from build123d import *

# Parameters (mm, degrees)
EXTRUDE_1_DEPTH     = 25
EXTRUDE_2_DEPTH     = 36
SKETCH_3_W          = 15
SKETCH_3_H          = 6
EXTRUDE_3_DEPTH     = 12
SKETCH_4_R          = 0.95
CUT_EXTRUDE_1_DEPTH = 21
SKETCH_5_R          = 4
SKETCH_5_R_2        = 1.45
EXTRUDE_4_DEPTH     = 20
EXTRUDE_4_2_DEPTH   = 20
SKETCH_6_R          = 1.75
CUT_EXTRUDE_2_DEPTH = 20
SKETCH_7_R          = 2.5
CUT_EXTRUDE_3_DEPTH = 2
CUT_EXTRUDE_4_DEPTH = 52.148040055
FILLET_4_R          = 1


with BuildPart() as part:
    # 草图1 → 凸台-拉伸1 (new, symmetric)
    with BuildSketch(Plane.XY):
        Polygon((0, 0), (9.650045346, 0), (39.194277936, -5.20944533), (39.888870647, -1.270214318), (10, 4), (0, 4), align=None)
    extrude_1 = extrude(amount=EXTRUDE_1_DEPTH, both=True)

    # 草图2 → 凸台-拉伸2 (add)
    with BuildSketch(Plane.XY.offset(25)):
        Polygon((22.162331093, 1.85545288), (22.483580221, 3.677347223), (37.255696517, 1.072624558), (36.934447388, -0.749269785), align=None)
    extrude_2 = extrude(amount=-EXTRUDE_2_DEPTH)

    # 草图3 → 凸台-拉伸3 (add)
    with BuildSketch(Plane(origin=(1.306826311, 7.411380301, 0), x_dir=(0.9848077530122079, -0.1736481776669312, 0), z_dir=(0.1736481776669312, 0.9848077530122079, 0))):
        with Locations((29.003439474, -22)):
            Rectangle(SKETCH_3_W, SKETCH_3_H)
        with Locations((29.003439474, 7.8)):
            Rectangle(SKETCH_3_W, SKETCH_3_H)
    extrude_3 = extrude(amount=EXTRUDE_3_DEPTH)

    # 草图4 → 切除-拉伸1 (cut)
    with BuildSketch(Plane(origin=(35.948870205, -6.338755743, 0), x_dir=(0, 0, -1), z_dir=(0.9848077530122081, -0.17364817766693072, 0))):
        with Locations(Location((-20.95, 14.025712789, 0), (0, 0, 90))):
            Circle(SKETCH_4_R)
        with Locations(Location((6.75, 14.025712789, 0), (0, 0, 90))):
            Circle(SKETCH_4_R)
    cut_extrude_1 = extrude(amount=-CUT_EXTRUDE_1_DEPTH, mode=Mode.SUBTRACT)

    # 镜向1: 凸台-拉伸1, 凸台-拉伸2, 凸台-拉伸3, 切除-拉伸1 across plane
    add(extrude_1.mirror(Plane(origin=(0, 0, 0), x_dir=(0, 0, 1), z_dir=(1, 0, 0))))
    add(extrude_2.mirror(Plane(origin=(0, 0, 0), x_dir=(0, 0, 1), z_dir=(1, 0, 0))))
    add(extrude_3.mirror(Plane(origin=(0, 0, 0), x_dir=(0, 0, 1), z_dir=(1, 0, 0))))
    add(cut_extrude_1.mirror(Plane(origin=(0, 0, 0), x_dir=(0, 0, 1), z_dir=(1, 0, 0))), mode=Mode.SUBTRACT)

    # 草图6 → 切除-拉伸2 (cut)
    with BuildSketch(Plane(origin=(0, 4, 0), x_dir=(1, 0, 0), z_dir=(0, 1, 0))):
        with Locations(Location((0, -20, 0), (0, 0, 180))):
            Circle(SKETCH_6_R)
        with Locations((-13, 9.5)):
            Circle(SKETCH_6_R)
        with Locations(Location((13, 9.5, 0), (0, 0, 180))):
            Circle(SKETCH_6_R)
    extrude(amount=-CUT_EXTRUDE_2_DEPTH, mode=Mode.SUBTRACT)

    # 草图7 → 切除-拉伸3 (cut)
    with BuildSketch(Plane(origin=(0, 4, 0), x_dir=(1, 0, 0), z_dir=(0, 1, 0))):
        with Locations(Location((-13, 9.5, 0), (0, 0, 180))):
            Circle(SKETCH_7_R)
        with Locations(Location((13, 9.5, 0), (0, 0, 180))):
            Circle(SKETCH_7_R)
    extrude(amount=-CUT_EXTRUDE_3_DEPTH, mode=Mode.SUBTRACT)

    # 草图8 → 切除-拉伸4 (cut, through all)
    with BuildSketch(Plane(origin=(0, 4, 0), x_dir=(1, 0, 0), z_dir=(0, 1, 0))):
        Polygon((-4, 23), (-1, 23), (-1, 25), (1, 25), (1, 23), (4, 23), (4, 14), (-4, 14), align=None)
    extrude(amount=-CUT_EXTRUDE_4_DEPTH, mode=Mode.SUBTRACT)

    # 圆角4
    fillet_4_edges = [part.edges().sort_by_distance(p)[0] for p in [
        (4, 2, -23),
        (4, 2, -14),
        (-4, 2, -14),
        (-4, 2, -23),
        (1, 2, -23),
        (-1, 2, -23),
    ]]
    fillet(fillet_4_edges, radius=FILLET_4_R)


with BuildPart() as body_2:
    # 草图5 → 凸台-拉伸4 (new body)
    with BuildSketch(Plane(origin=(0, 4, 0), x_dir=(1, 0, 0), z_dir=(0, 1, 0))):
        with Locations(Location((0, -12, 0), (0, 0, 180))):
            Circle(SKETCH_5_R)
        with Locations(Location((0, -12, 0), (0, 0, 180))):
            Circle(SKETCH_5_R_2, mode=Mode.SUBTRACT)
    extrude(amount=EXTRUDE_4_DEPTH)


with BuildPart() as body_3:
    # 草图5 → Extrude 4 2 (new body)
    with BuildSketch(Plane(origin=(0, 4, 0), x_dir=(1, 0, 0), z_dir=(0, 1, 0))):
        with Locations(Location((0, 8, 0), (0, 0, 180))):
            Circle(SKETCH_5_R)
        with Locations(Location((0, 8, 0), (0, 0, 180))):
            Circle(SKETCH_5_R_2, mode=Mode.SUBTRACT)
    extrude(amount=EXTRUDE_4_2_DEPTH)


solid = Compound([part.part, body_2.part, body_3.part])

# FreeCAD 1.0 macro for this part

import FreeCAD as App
import Part
import Sketcher

V = App.Vector
Q = App.Units.Quantity


def edges_at(feature, points):
    """Names of the edges that pass closest to the given points."""
    edges = feature.Shape.Edges
    near = lambda p: min(range(len(edges)), key=lambda i: edges[i].distToShape(Part.Vertex(*p))[0])
    return sorted({f"Edge{near(p) + 1}" for p in points})

doc = App.newDocument("Part")
params = doc.addObject("Spreadsheet::Sheet", "Params")
for row, (alias, value) in enumerate([
    ("sketch1_width", "10 mm"),
    ("sketch1_height", "4 mm"),
    ("sketch1_length", "30 mm"),
    ("sketch1_length2", "4 mm"),
    ("pad1_length", "50 mm"),
    ("sketch2_length", "15 mm"),
    ("sketch2_length2", "1.85 mm"),
    ("pad2_length", "36 mm"),
    ("sketch3_width", "15 mm"),
    ("sketch3_height", "6 mm"),
    ("pad3_length", "12 mm"),
    ("sketch4_diameter", "1.9 mm"),
    ("pocket1_length", "21 mm"),
    ("sketch5_diameter", "3.5 mm"),
    ("pocket2_length", "20 mm"),
    ("sketch6_diameter", "5 mm"),
    ("pocket3_length", "2 mm"),
    ("sketch7_width", "3 mm"),
    ("sketch7_width2", "8 mm"),
    ("sketch7_height", "9 mm"),
    ("fillet_radius", "1 mm"),
    ("sketch8_diameter", "8 mm"),
    ("sketch8_diameter2", "2.9 mm"),
    ("pad4_length", "20 mm"),
    ("sketch9_diameter", "8 mm"),
    ("sketch9_diameter2", "2.9 mm"),
    ("pad5_length", "20 mm"),
], start=1):
    params.set(f"A{row}", alias)
    params.set(f"B{row}", "=" + value)
    params.setAlias(f"B{row}", alias)

body = doc.addObject("PartDesign::Body", "Body")

# Sketch on XY plane
sketch1 = body.newObject("Sketcher::SketchObject", "Sketch")
sketch1.AttachmentSupport = (doc.getObject("XY_Plane"), [""])
sketch1.MapMode = "FlatFace"
sketch1.addGeometry([
    Part.LineSegment(V(0, 0, 0), V(9.650045, 0, 0)),  # 0
    Part.LineSegment(V(9.650045, 0, 0), V(39.194278, -5.209445, 0)),  # 1
    Part.LineSegment(V(39.194278, -5.209445, 0), V(39.888871, -1.270214, 0)),  # 2
    Part.LineSegment(V(39.888871, -1.270214, 0), V(10, 4, 0)),  # 3
    Part.LineSegment(V(10, 4, 0), V(0, 4, 0)),  # 4
    Part.LineSegment(V(0, 4, 0), V(0, 0, 0)),  # 5
], False)
sketch1.addConstraint([
    Sketcher.Constraint("Coincident", 0, 2, 1, 1),
    Sketcher.Constraint("Coincident", 1, 2, 2, 1),
    Sketcher.Constraint("Coincident", 2, 2, 3, 1),
    Sketcher.Constraint("Coincident", 3, 2, 4, 1),
    Sketcher.Constraint("Coincident", 4, 2, 5, 1),
    Sketcher.Constraint("Coincident", 5, 2, 0, 1),
    Sketcher.Constraint("Horizontal", 0),
    Sketcher.Constraint("Horizontal", 4),
    Sketcher.Constraint("Vertical", 5),
    Sketcher.Constraint("Coincident", 5, 2, -1, 1),
    Sketcher.Constraint("Perpendicular", 1, 2),
    Sketcher.Constraint("Perpendicular", 2, 3),
    Sketcher.Constraint("DistanceX", 4, 2, 4, 1, Q("10 mm")),
    Sketcher.Constraint("DistanceY", 5, 2, 5, 1, Q("4 mm")),
    Sketcher.Constraint("Angle", 1, Q("-10 deg")),
    Sketcher.Constraint("Distance", 1, Q("30 mm")),
    Sketcher.Constraint("Distance", 2, Q("4 mm")),
])
sketch1.setExpression("Constraints[12]", "Params.sketch1_width")
sketch1.setExpression("Constraints[13]", "Params.sketch1_height")
sketch1.setExpression("Constraints[15]", "Params.sketch1_length")
sketch1.setExpression("Constraints[16]", "Params.sketch1_length2")
pad1 = body.newObject("PartDesign::Pad", "Pad")
pad1.Profile = sketch1
pad1.setExpression("Length", "Params.pad1_length")
pad1.Midplane = True

# Sketch on XY plane
sketch2 = body.newObject("Sketcher::SketchObject", "Sketch001")
sketch2.AttachmentSupport = (doc.getObject("XY_Plane"), [""])
sketch2.MapMode = "FlatFace"
sketch2.AttachmentOffset = App.Placement(V(0, 0, 25), App.Rotation())
sketch2.addGeometry([
    Part.LineSegment(V(22.48358, 3.677347, 0), V(22.162331, 1.855453, 0)),
    Part.LineSegment(V(22.162331, 1.855453, 0), V(36.934447, -0.74927, 0)),
    Part.LineSegment(V(36.934447, -0.74927, 0), V(37.255697, 1.072625, 0)),
    Part.LineSegment(V(37.255697, 1.072625, 0), V(22.48358, 3.677347, 0)),
], False)
sketch2.addConstraint([
    Sketcher.Constraint("Coincident", 0, 2, 1, 1),
    Sketcher.Constraint("Coincident", 1, 2, 2, 1),
    Sketcher.Constraint("Coincident", 2, 2, 3, 1),
    Sketcher.Constraint("Coincident", 3, 2, 0, 1),
    Sketcher.Constraint("Perpendicular", 0, 1),
    Sketcher.Constraint("Perpendicular", 1, 2),
    Sketcher.Constraint("Perpendicular", 2, 3),
    Sketcher.Constraint("Angle", 0, Q("-100 deg")),
    Sketcher.Constraint("Distance", 1, Q("15 mm")),
    Sketcher.Constraint("Distance", 0, Q("1.85 mm")),
    Sketcher.Constraint("DistanceX", -1, 1, 0, 2, Q("22.162331 mm")),
    Sketcher.Constraint("DistanceY", 1, 2, -1, 1, Q("0.74927 mm")),
])
sketch2.setExpression("Constraints[8]", "Params.sketch2_length")
sketch2.setExpression("Constraints[9]", "Params.sketch2_length2")
pad2 = body.newObject("PartDesign::Pad", "Pad001")
pad2.Profile = sketch2
pad2.setExpression("Length", "Params.pad2_length")
pad2.Reversed = True

# Sketch on an angled plane
sketch3 = body.newObject("Sketcher::SketchObject", "Sketch002")
sketch3.Placement = App.Placement(V(1.306826, 7.41138, 0), App.Rotation(V(0.984807753, -0.173648178, 0), V(0, 0, -1), V(0.173648178, 0.984807753, 0), "ZXY"))
sketch3.addGeometry([
    Part.LineSegment(V(21.503439, -19, 0), V(21.503439, -25, 0)),  # 0
    Part.LineSegment(V(21.503439, -25, 0), V(36.503439, -25, 0)),  # 1
    Part.LineSegment(V(36.503439, -25, 0), V(36.503439, -19, 0)),  # 2
    Part.LineSegment(V(36.503439, -19, 0), V(21.503439, -19, 0)),  # 3
    Part.LineSegment(V(21.503439, 10.8, 0), V(21.503439, 4.8, 0)),  # 4
    Part.LineSegment(V(21.503439, 4.8, 0), V(36.503439, 4.8, 0)),  # 5
    Part.LineSegment(V(36.503439, 4.8, 0), V(36.503439, 10.8, 0)),  # 6
    Part.LineSegment(V(36.503439, 10.8, 0), V(21.503439, 10.8, 0)),  # 7
], False)
sketch3.addConstraint([
    Sketcher.Constraint("Coincident", 0, 2, 1, 1),
    Sketcher.Constraint("Coincident", 1, 2, 2, 1),
    Sketcher.Constraint("Coincident", 2, 2, 3, 1),
    Sketcher.Constraint("Coincident", 3, 2, 0, 1),
    Sketcher.Constraint("Coincident", 4, 2, 5, 1),
    Sketcher.Constraint("Coincident", 5, 2, 6, 1),
    Sketcher.Constraint("Coincident", 6, 2, 7, 1),
    Sketcher.Constraint("Coincident", 7, 2, 4, 1),
    Sketcher.Constraint("Vertical", 0),
    Sketcher.Constraint("Horizontal", 1),
    Sketcher.Constraint("Vertical", 2),
    Sketcher.Constraint("Horizontal", 3),
    Sketcher.Constraint("Vertical", 4),
    Sketcher.Constraint("Horizontal", 5),
    Sketcher.Constraint("Vertical", 6),
    Sketcher.Constraint("Horizontal", 7),
    Sketcher.Constraint("Vertical", 3, 2, 4, 2),
    Sketcher.Constraint("Vertical", 2, 2, 5, 2),
    Sketcher.Constraint("Equal", 2, 4),
    Sketcher.Constraint("DistanceX", 1, 1, 1, 2, Q("15 mm")),
    Sketcher.Constraint("DistanceY", 0, 2, 0, 1, Q("6 mm")),
    Sketcher.Constraint("DistanceY", 0, 2, -1, 1, Q("25 mm")),
    Sketcher.Constraint("DistanceY", -1, 1, 4, 2, Q("4.8 mm")),
    Sketcher.Constraint("DistanceX", -1, 1, 0, 2, Q("21.503439 mm")),
])
sketch3.setExpression("Constraints[19]", "Params.sketch3_width")
sketch3.setExpression("Constraints[20]", "Params.sketch3_height")
pad3 = body.newObject("PartDesign::Pad", "Pad002")
pad3.Profile = sketch3
pad3.setExpression("Length", "Params.pad3_length")

# Sketch on an angled plane
sketch4 = body.newObject("Sketcher::SketchObject", "Sketch003")
sketch4.Placement = App.Placement(V(35.94887, -6.338756, 0), App.Rotation(V(0, 0, -1), V(0.173648178, 0.984807753, 0), V(0.984807753, -0.173648178, 0), "ZXY"))
sketch4.addGeometry([
    Part.Circle(V(-20.95, 14.025713, 0), V(0, 0, 1), 0.95),
    Part.Circle(V(6.75, 14.025713, 0), V(0, 0, 1), 0.95),
], False)
sketch4.addConstraint([
    Sketcher.Constraint("Equal", 0, 1),
    Sketcher.Constraint("Horizontal", 0, 3, 1, 3),
    Sketcher.Constraint("Diameter", 0, Q("1.9 mm")),
    Sketcher.Constraint("DistanceX", 0, 3, 1, 3, Q("27.7 mm")),
    Sketcher.Constraint("DistanceX", 0, 3, -1, 1, Q("20.95 mm")),
    Sketcher.Constraint("DistanceY", -1, 1, 0, 3, Q("14.025713 mm")),
])
sketch4.setExpression("Constraints[2]", "Params.sketch4_diameter")
pocket1 = body.newObject("PartDesign::Pocket", "Pocket")
pocket1.Profile = sketch4
pocket1.setExpression("Length", "Params.pocket1_length")
doc.recompute()

mirrored = body.newObject("PartDesign::Mirrored", "Mirrored")
mirrored.Originals = [pad1, pad2, pad3, pocket1]
mirrored.MirrorPlane = (doc.getObject("YZ_Plane"), [""])
body.Tip = mirrored

# Sketch on XZ plane
sketch5 = body.newObject("Sketcher::SketchObject", "Sketch004")
sketch5.AttachmentSupport = (doc.getObject("XZ_Plane"), [""])
sketch5.MapMode = "FlatFace"
sketch5.AttachmentOffset = App.Placement(V(0, 0, -4), App.Rotation())
sketch5.addGeometry([
    Part.Circle(V(0, 20, 0), V(0, 0, 1), 1.75),
    Part.Circle(V(-13, -9.5, 0), V(0, 0, 1), 1.75),
    Part.Circle(V(13, -9.5, 0), V(0, 0, 1), 1.75),
], False)
sketch5.addConstraint([
    Sketcher.Constraint("Equal", 0, 1),
    Sketcher.Constraint("Equal", 1, 2),
    Sketcher.Constraint("Symmetric", 1, 3, 2, 3, -2),
    Sketcher.Constraint("PointOnObject", 0, 3, -2),
    Sketcher.Constraint("Diameter", 0, Q("3.5 mm")),
    Sketcher.Constraint("DistanceY", -1, 1, 0, 3, Q("20 mm")),
    Sketcher.Constraint("DistanceX", 1, 3, -1, 1, Q("13 mm")),
    Sketcher.Constraint("DistanceY", 1, 3, -1, 1, Q("9.5 mm")),
])
sketch5.setExpression("Constraints[4]", "Params.sketch5_diameter")
pocket2 = body.newObject("PartDesign::Pocket", "Pocket001")
pocket2.Profile = sketch5
pocket2.setExpression("Length", "Params.pocket2_length")
pocket2.Reversed = True

# Sketch on XZ plane
sketch6 = body.newObject("Sketcher::SketchObject", "Sketch005")
sketch6.AttachmentSupport = (doc.getObject("XZ_Plane"), [""])
sketch6.MapMode = "FlatFace"
sketch6.AttachmentOffset = App.Placement(V(0, 0, -4), App.Rotation())
sketch6.addGeometry([
    Part.Circle(V(-13, -9.5, 0), V(0, 0, 1), 2.5),
    Part.Circle(V(13, -9.5, 0), V(0, 0, 1), 2.5),
], False)
sketch6.addConstraint([
    Sketcher.Constraint("Equal", 0, 1),
    Sketcher.Constraint("Symmetric", 0, 3, 1, 3, -2),
    Sketcher.Constraint("Diameter", 0, Q("5 mm")),
    Sketcher.Constraint("DistanceX", 0, 3, -1, 1, Q("13 mm")),
    Sketcher.Constraint("DistanceY", 0, 3, -1, 1, Q("9.5 mm")),
])
sketch6.setExpression("Constraints[2]", "Params.sketch6_diameter")
pocket3 = body.newObject("PartDesign::Pocket", "Pocket002")
pocket3.Profile = sketch6
pocket3.setExpression("Length", "Params.pocket3_length")
pocket3.Reversed = True

# Sketch on XZ plane
sketch7 = body.newObject("Sketcher::SketchObject", "Sketch006")
sketch7.AttachmentSupport = (doc.getObject("XZ_Plane"), [""])
sketch7.MapMode = "FlatFace"
sketch7.AttachmentOffset = App.Placement(V(0, 0, -4), App.Rotation())
sketch7.addGeometry([
    Part.LineSegment(V(-1, -23, 0), V(-4, -23, 0)),  # 0
    Part.LineSegment(V(-4, -23, 0), V(-4, -14, 0)),  # 1
    Part.LineSegment(V(-4, -14, 0), V(4, -14, 0)),  # 2
    Part.LineSegment(V(4, -14, 0), V(4, -23, 0)),  # 3
    Part.LineSegment(V(4, -23, 0), V(1, -23, 0)),  # 4
    Part.LineSegment(V(1, -23, 0), V(1, -25, 0)),  # 5
    Part.LineSegment(V(1, -25, 0), V(-1, -25, 0)),  # 6
    Part.LineSegment(V(-1, -25, 0), V(-1, -23, 0)),  # 7
], False)
sketch7.addConstraint([
    Sketcher.Constraint("Coincident", 0, 2, 1, 1),
    Sketcher.Constraint("Coincident", 1, 2, 2, 1),
    Sketcher.Constraint("Coincident", 2, 2, 3, 1),
    Sketcher.Constraint("Coincident", 3, 2, 4, 1),
    Sketcher.Constraint("Coincident", 4, 2, 5, 1),
    Sketcher.Constraint("Coincident", 5, 2, 6, 1),
    Sketcher.Constraint("Coincident", 6, 2, 7, 1),
    Sketcher.Constraint("Coincident", 7, 2, 0, 1),
    Sketcher.Constraint("Horizontal", 0),
    Sketcher.Constraint("Vertical", 1),
    Sketcher.Constraint("Horizontal", 2),
    Sketcher.Constraint("Vertical", 3),
    Sketcher.Constraint("Horizontal", 4),
    Sketcher.Constraint("Vertical", 5),
    Sketcher.Constraint("Horizontal", 6),
    Sketcher.Constraint("Vertical", 7),
    Sketcher.Constraint("Symmetric", 0, 2, 3, 2, -2),
    Sketcher.Constraint("Equal", 0, 4),
    Sketcher.Constraint("Equal", 6, 5),
    Sketcher.Constraint("DistanceX", 0, 2, 0, 1, Q("3 mm")),
    Sketcher.Constraint("DistanceX", 2, 1, 2, 2, Q("8 mm")),
    Sketcher.Constraint("DistanceY", 1, 1, 1, 2, Q("9 mm")),
    Sketcher.Constraint("DistanceY", 0, 2, -1, 1, Q("23 mm")),
])
sketch7.setExpression("Constraints[19]", "Params.sketch7_width")
sketch7.setExpression("Constraints[20]", "Params.sketch7_width2")
sketch7.setExpression("Constraints[21]", "Params.sketch7_height")
pocket4 = body.newObject("PartDesign::Pocket", "Pocket003")
pocket4.Profile = sketch7
pocket4.Type = "ThroughAll"
pocket4.Reversed = True
doc.recompute()

fillet = body.newObject("PartDesign::Fillet", "Fillet")
fillet.Base = (pocket4, edges_at(pocket4, [
    (4, 2, -23),
    (4, 2, -14),
    (-4, 2, -14),
    (-4, 2, -23),
    (1, 2, -23),
    (-1, 2, -23),
]))
fillet.setExpression("Radius", "Params.fillet_radius")
body2 = doc.addObject("PartDesign::Body", "Body001")

# Sketch on XZ plane
sketch8 = body2.newObject("Sketcher::SketchObject", "Sketch007")
sketch8.AttachmentSupport = (doc.getObject("XZ_Plane001"), [""])
sketch8.MapMode = "FlatFace"
sketch8.AttachmentOffset = App.Placement(V(0, 0, -4), App.Rotation())
sketch8.addGeometry([
    Part.Circle(V(0, 12, 0), V(0, 0, 1), 4),
    Part.Circle(V(0, 12, 0), V(0, 0, 1), 1.45),
], False)
sketch8.addConstraint([
    Sketcher.Constraint("Coincident", 1, 3, 0, 3),
    Sketcher.Constraint("PointOnObject", 0, 3, -2),
    Sketcher.Constraint("Diameter", 0, Q("8 mm")),
    Sketcher.Constraint("Diameter", 1, Q("2.9 mm")),
    Sketcher.Constraint("DistanceY", -1, 1, 0, 3, Q("12 mm")),
])
sketch8.setExpression("Constraints[2]", "Params.sketch8_diameter")
sketch8.setExpression("Constraints[3]", "Params.sketch8_diameter2")
pad4 = body2.newObject("PartDesign::Pad", "Pad003")
pad4.Profile = sketch8
pad4.setExpression("Length", "Params.pad4_length")
pad4.Reversed = True
body3 = doc.addObject("PartDesign::Body", "Body002")

# Sketch on XZ plane
sketch9 = body3.newObject("Sketcher::SketchObject", "Sketch008")
sketch9.AttachmentSupport = (doc.getObject("XZ_Plane002"), [""])
sketch9.MapMode = "FlatFace"
sketch9.AttachmentOffset = App.Placement(V(0, 0, -4), App.Rotation())
sketch9.addGeometry([
    Part.Circle(V(0, -8, 0), V(0, 0, 1), 4),
    Part.Circle(V(0, -8, 0), V(0, 0, 1), 1.45),
], False)
sketch9.addConstraint([
    Sketcher.Constraint("Coincident", 1, 3, 0, 3),
    Sketcher.Constraint("PointOnObject", 0, 3, -2),
    Sketcher.Constraint("Diameter", 0, Q("8 mm")),
    Sketcher.Constraint("Diameter", 1, Q("2.9 mm")),
    Sketcher.Constraint("DistanceY", 0, 3, -1, 1, Q("8 mm")),
])
sketch9.setExpression("Constraints[2]", "Params.sketch9_diameter")
sketch9.setExpression("Constraints[3]", "Params.sketch9_diameter2")
pad5 = body3.newObject("PartDesign::Pad", "Pad004")
pad5.Profile = sketch9
pad5.setExpression("Length", "Params.pad5_length")
pad5.Reversed = True

doc.recompute()
